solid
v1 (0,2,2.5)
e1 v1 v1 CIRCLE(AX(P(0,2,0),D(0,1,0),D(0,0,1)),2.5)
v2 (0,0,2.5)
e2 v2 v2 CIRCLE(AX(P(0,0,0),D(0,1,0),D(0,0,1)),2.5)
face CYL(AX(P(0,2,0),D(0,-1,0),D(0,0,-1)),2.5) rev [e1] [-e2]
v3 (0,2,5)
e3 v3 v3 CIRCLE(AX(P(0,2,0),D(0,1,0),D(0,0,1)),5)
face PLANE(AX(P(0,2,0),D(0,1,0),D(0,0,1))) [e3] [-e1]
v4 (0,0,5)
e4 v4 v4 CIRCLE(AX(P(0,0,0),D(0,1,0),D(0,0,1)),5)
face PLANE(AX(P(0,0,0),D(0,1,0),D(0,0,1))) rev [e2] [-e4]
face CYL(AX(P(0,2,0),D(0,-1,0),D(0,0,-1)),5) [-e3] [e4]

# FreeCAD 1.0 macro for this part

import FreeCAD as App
import Part
import Sketcher
from FreeCAD import Vector
Q = App.Units.Quantity

doc = App.newDocument("Part")
body = doc.addObject("PartDesign::Body", "Body")

sketch1 = body.newObject("Sketcher::SketchObject", "Sketch")
sketch1.AttachmentSupport = (doc.getObject("XZ_Plane"), [""])
sketch1.MapMode = "FlatFace"
sketch1.addGeometry([
    Part.Circle(Vector(0, 0, 0), Vector(0, 0, 1), 5),
    Part.Circle(Vector(0, 0, 0), Vector(0, 0, 1), 2.5),
], False)
sketch1.addConstraint([
    Sketcher.Constraint("Coincident", 0, 3, -1, 1),
    Sketcher.Constraint("Coincident", 1, 3, -1, 1),
    Sketcher.Constraint("Diameter", 0, Q("10 mm")),
    Sketcher.Constraint("Diameter", 1, Q("5 mm")),
])
pad1 = body.newObject("PartDesign::Pad", "Pad")
pad1.Profile = sketch1
pad1.Length = 2
pad1.Reversed = True

doc.recompute()
